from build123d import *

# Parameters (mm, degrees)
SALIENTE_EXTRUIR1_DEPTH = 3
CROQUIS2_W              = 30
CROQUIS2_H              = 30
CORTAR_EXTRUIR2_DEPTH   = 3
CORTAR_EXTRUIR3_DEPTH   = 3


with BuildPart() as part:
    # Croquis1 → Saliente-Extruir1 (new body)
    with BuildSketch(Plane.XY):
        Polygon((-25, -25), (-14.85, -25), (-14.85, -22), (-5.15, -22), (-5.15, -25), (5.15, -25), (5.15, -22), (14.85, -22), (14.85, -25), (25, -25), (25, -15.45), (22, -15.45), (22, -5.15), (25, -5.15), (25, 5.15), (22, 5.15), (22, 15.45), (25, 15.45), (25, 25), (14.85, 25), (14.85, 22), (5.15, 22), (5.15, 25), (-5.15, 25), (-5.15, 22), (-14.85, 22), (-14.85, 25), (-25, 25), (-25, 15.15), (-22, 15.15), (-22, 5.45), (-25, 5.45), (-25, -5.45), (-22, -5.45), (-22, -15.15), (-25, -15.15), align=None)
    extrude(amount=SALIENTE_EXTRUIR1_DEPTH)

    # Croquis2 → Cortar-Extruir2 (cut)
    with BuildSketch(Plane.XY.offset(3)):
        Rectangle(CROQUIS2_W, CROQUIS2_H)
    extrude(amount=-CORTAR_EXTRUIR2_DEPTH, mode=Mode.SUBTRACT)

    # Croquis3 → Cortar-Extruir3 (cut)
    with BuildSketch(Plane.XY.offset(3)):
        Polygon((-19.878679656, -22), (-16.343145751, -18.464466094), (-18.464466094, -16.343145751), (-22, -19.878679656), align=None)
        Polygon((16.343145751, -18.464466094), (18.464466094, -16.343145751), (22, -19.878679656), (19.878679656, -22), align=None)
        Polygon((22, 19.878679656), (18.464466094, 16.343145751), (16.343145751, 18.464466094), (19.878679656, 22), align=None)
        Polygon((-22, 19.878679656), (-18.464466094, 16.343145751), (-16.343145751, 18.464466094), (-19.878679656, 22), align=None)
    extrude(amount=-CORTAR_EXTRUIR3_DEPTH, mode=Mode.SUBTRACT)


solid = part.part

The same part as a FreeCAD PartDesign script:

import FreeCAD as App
import Part
import Sketcher
from FreeCAD import Vector
Q = App.Units.Quantity

doc = App.newDocument("Part")
body = doc.addObject("PartDesign::Body", "Body")

# Sketch on XY plane
sketch1 = body.newObject("Sketcher::SketchObject", "Sketch")
sketch1.AttachmentSupport = (doc.getObject("XY_Plane"), [""])
sketch1.MapMode = "FlatFace"
sketch1.addGeometry(Part.LineSegment(Vector(-25, -25, 0), Vector(-14.8, -25, 0)), False)
sketch1.addGeometry(Part.LineSegment(Vector(-14.8, -25, 0), Vector(-14.8, -22, 0)), False)
sketch1.addGeometry(Part.LineSegment(Vector(-14.8, -22, 0), Vector(-5.2, -22, 0)), False)
sketch1.addGeometry(Part.LineSegment(Vector(-5.2, -22, 0), Vector(-5.2, -25, 0)), False)
sketch1.addGeometry(Part.LineSegment(Vector(-5.2, -25, 0), Vector(5.2, -25, 0)), False)
sketch1.addGeometry(Part.LineSegment(Vector(5.2, -25, 0), Vector(5.2, -22, 0)), False)
sketch1.addGeometry(Part.LineSegment(Vector(5.2, -22, 0), Vector(14.8, -22, 0)), False)
sketch1.addGeometry(Part.LineSegment(Vector(14.8, -22, 0), Vector(14.8, -25, 0)), False)
sketch1.addGeometry(Part.LineSegment(Vector(14.8, -25, 0), Vector(25, -25, 0)), False)
sketch1.addGeometry(Part.LineSegment(Vector(25, -25, 0), Vector(25, -15.4, 0)), False)
sketch1.addGeometry(Part.LineSegment(Vector(25, -15.4, 0), Vector(22, -15.4, 0)), False)
sketch1.addGeometry(Part.LineSegment(Vector(22, -15.4, 0), Vector(22, -5.2, 0)), False)
sketch1.addGeometry(Part.LineSegment(Vector(22, -5.2, 0), Vector(25, -5.2, 0)), False)
sketch1.addGeometry(Part.LineSegment(Vector(25, -5.2, 0), Vector(25, 5.2, 0)), False)
sketch1.addGeometry(Part.LineSegment(Vector(25, 5.2, 0), Vector(22, 5.2, 0)), False)
sketch1.addGeometry(Part.LineSegment(Vector(22, 5.2, 0), Vector(22, 15.4, 0)), False)
sketch1.addGeometry(Part.LineSegment(Vector(22, 15.4, 0), Vector(25, 15.4, 0)), False)
sketch1.addGeometry(Part.LineSegment(Vector(25, 15.4, 0), Vector(25, 25, 0)), False)
sketch1.addGeometry(Part.LineSegment(Vector(25, 25, 0), Vector(14.8, 25, 0)), False)
sketch1.addGeometry(Part.LineSegment(Vector(14.8, 25, 0), Vector(14.8, 22, 0)), False)
sketch1.addGeometry(Part.LineSegment(Vector(14.8, 22, 0), Vector(5.2, 22, 0)), False)
sketch1.addGeometry(Part.LineSegment(Vector(5.2, 22, 0), Vector(5.2, 25, 0)), False)
sketch1.addGeometry(Part.LineSegment(Vector(5.2, 25, 0), Vector(-5.2, 25, 0)), False)
sketch1.addGeometry(Part.LineSegment(Vector(-5.2, 25, 0), Vector(-5.2, 22, 0)), False)
sketch1.addGeometry(Part.LineSegment(Vector(-5.2, 22, 0), Vector(-14.8, 22, 0)), False)
sketch1.addGeometry(Part.LineSegment(Vector(-14.8, 22, 0), Vector(-14.8, 25, 0)), False)
sketch1.addGeometry(Part.LineSegment(Vector(-14.8, 25, 0), Vector(-25, 25, 0)), False)
sketch1.addGeometry(Part.LineSegment(Vector(-25, 25, 0), Vector(-25, 15.2, 0)), False)
sketch1.addGeometry(Part.LineSegment(Vector(-25, 15.2, 0), Vector(-22, 15.2, 0)), False)
sketch1.addGeometry(Part.LineSegment(Vector(-22, 15.2, 0), Vector(-22, 5.5, 0)), False)
sketch1.addGeometry(Part.LineSegment(Vector(-22, 5.5, 0), Vector(-25, 5.5, 0)), False)
sketch1.addGeometry(Part.LineSegment(Vector(-25, 5.5, 0), Vector(-25, -5.5, 0)), False)
sketch1.addGeometry(Part.LineSegment(Vector(-25, -5.5, 0), Vector(-22, -5.5, 0)), False)
sketch1.addGeometry(Part.LineSegment(Vector(-22, -5.5, 0), Vector(-22, -15.2, 0)), False)
sketch1.addGeometry(Part.LineSegment(Vector(-22, -15.2, 0), Vector(-25, -15.2, 0)), False)
sketch1.addGeometry(Part.LineSegment(Vector(-25, -15.2, 0), Vector(-25, -25, 0)), False)
sketch1.addConstraint(Sketcher.Constraint("Coincident", 0, 2, 1, 1))
sketch1.addConstraint(Sketcher.Constraint("Coincident", 1, 2, 2, 1))
sketch1.addConstraint(Sketcher.Constraint("Coincident", 2, 2, 3, 1))
sketch1.addConstraint(Sketcher.Constraint("Coincident", 3, 2, 4, 1))
sketch1.addConstraint(Sketcher.Constraint("Coincident", 4, 2, 5, 1))
sketch1.addConstraint(Sketcher.Constraint("Coincident", 5, 2, 6, 1))
sketch1.addConstraint(Sketcher.Constraint("Coincident", 6, 2, 7, 1))
sketch1.addConstraint(Sketcher.Constraint("Coincident", 7, 2, 8, 1))
sketch1.addConstraint(Sketcher.Constraint("Coincident", 8, 2, 9, 1))
sketch1.addConstraint(Sketcher.Constraint("Coincident", 9, 2, 10, 1))
sketch1.addConstraint(Sketcher.Constraint("Coincident", 10, 2, 11, 1))
sketch1.addConstraint(Sketcher.Constraint("Coincident", 11, 2, 12, 1))
sketch1.addConstraint(Sketcher.Constraint("Coincident", 12, 2, 13, 1))
sketch1.addConstraint(Sketcher.Constraint("Coincident", 13, 2, 14, 1))
sketch1.addConstraint(Sketcher.Constraint("Coincident", 14, 2, 15, 1))
sketch1.addConstraint(Sketcher.Constraint("Coincident", 15, 2, 16, 1))
sketch1.addConstraint(Sketcher.Constraint("Coincident", 16, 2, 17, 1))
sketch1.addConstraint(Sketcher.Constraint("Coincident", 17, 2, 18, 1))
sketch1.addConstraint(Sketcher.Constraint("Coincident", 18, 2, 19, 1))
sketch1.addConstraint(Sketcher.Constraint("Coincident", 19, 2, 20, 1))
sketch1.addConstraint(Sketcher.Constraint("Coincident", 20, 2, 21, 1))
sketch1.addConstraint(Sketcher.Constraint("Coincident", 21, 2, 22, 1))
sketch1.addConstraint(Sketcher.Constraint("Coincident", 22, 2, 23, 1))
sketch1.addConstraint(Sketcher.Constraint("Coincident", 23, 2, 24, 1))
sketch1.addConstraint(Sketcher.Constraint("Coincident", 24, 2, 25, 1))
sketch1.addConstraint(Sketcher.Constraint("Coincident", 25, 2, 26, 1))
sketch1.addConstraint(Sketcher.Constraint("Coincident", 26, 2, 27, 1))
sketch1.addConstraint(Sketcher.Constraint("Coincident", 27, 2, 28, 1))
sketch1.addConstraint(Sketcher.Constraint("Coincident", 28, 2, 29, 1))
sketch1.addConstraint(Sketcher.Constraint("Coincident", 29, 2, 30, 1))
sketch1.addConstraint(Sketcher.Constraint("Coincident", 30, 2, 31, 1))
sketch1.addConstraint(Sketcher.Constraint("Coincident", 31, 2, 32, 1))
sketch1.addConstraint(Sketcher.Constraint("Coincident", 32, 2, 33, 1))
sketch1.addConstraint(Sketcher.Constraint("Coincident", 33, 2, 34, 1))
sketch1.addConstraint(Sketcher.Constraint("Coincident", 34, 2, 35, 1))
sketch1.addConstraint(Sketcher.Constraint("Coincident", 35, 2, 0, 1))
sketch1.addConstraint(Sketcher.Constraint("Horizontal", 0))
sketch1.addConstraint(Sketcher.Constraint("Vertical", 1))
sketch1.addConstraint(Sketcher.Constraint("Horizontal", 2))
sketch1.addConstraint(Sketcher.Constraint("Vertical", 3))
sketch1.addConstraint(Sketcher.Constraint("Horizontal", 4))
sketch1.addConstraint(Sketcher.Constraint("Vertical", 5))
sketch1.addConstraint(Sketcher.Constraint("Horizontal", 6))
sketch1.addConstraint(Sketcher.Constraint("Vertical", 7))
sketch1.addConstraint(Sketcher.Constraint("Horizontal", 8))
sketch1.addConstraint(Sketcher.Constraint("Vertical", 9))
sketch1.addConstraint(Sketcher.Constraint("Horizontal", 10))
sketch1.addConstraint(Sketcher.Constraint("Vertical", 11))
sketch1.addConstraint(Sketcher.Constraint("Horizontal", 12))
sketch1.addConstraint(Sketcher.Constraint("Vertical", 13))
sketch1.addConstraint(Sketcher.Constraint("Horizontal", 14))
sketch1.addConstraint(Sketcher.Constraint("Vertical", 15))
sketch1.addConstraint(Sketcher.Constraint("Horizontal", 16))
sketch1.addConstraint(Sketcher.Constraint("Vertical", 17))
sketch1.addConstraint(Sketcher.Constraint("Horizontal", 18))
sketch1.addConstraint(Sketcher.Constraint("Vertical", 19))
sketch1.addConstraint(Sketcher.Constraint("Horizontal", 20))
sketch1.addConstraint(Sketcher.Constraint("Vertical", 21))
sketch1.addConstraint(Sketcher.Constraint("Horizontal", 22))
sketch1.addConstraint(Sketcher.Constraint("Vertical", 23))
sketch1.addConstraint(Sketcher.Constraint("Horizontal", 24))
sketch1.addConstraint(Sketcher.Constraint("Vertical", 25))
sketch1.addConstraint(Sketcher.Constraint("Horizontal", 26))
sketch1.addConstraint(Sketcher.Constraint("Vertical", 27))
sketch1.addConstraint(Sketcher.Constraint("Horizontal", 28))
sketch1.addConstraint(Sketcher.Constraint("Vertical", 29))
sketch1.addConstraint(Sketcher.Constraint("Horizontal", 30))
sketch1.addConstraint(Sketcher.Constraint("Vertical", 31))
sketch1.addConstraint(Sketcher.Constraint("Horizontal", 32))
sketch1.addConstraint(Sketcher.Constraint("Vertical", 33))
sketch1.addConstraint(Sketcher.Constraint("Horizontal", 34))
sketch1.addConstraint(Sketcher.Constraint("Vertical", 35))
sketch1.addConstraint(Sketcher.Constraint("Symmetric", 0, 2, 18, 2, -1, 1))
sketch1.addConstraint(Sketcher.Constraint("Symmetric", 2, 2, 20, 2, -1, 1))
sketch1.addConstraint(Sketcher.Constraint("Symmetric", 4, 2, 22, 2, -1, 1))
sketch1.addConstraint(Sketcher.Constraint("Symmetric", 6, 2, 24, 2, -1, 1))
sketch1.addConstraint(Sketcher.Constraint("Symmetric", 8, 2, 26, 2, -1, 1))
sketch1.addConstraint(Sketcher.Constraint("Symmetric", 2, 2, 5, 2, -2))
sketch1.addConstraint(Sketcher.Constraint("Symmetric", 0, 2, 7, 2, -2))
sketch1.addConstraint(Sketcher.Constraint("Symmetric", 11, 2, 14, 2, -1))
sketch1.addConstraint(Sketcher.Constraint("Symmetric", 9, 2, 16, 2, -1))
sketch1.addConstraint(Sketcher.Constraint("Symmetric", 29, 2, 32, 2, -1))
sketch1.addConstraint(Sketcher.Constraint("Symmetric", 27, 2, 34, 2, -1))
sketch1.addConstraint(Sketcher.Constraint("Horizontal", 0, 2, 3, 2))
sketch1.addConstraint(Sketcher.Constraint("Vertical", 9, 2, 12, 2))
sketch1.addConstraint(Sketcher.Constraint("Vertical", 27, 2, 30, 2))
sketch1.addConstraint(Sketcher.Constraint("Equal", 16, 28))
sketch1.addConstraint(Sketcher.Constraint("Equal", 34, 1))
sketch1.addConstraint(Sketcher.Constraint("Equal", 22, 11))
sketch1.addConstraint(Sketcher.Constraint("Equal", 11, 13))
sketch1.addConstraint(Sketcher.Constraint("Equal", 24, 29))
sketch1.addConstraint(Sketcher.Constraint("DistanceX", 10, 2, 10, 1, Q("3 mm")))
sketch1.addConstraint(Sketcher.Constraint("DistanceX", 2, 1, 2, 2, Q("9.7 mm")))
sketch1.addConstraint(Sketcher.Constraint("DistanceX", 4, 1, 4, 2, Q("10.3 mm")))
sketch1.addConstraint(Sketcher.Constraint("DistanceY", 31, 2, 31, 1, Q("10.9 mm")))
sketch1.addConstraint(Sketcher.Constraint("DistanceY", 0, 2, -1, 1, Q("25 mm")))
sketch1.addConstraint(Sketcher.Constraint("DistanceX", -1, 1, 8, 2, Q("25 mm")))
pad1 = body.newObject("PartDesign::Pad", "Pad")
pad1.Profile = sketch1
pad1.Length = 3

# Sketch on XY plane
sketch2 = body.newObject("Sketcher::SketchObject", "Sketch001")
sketch2.AttachmentSupport = (doc.getObject("XY_Plane"), [""])
sketch2.MapMode = "FlatFace"
sketch2.AttachmentOffset = App.Placement(Vector(0, 0, 3), App.Rotation())
sketch2.addGeometry(Part.LineSegment(Vector(-15, 15, 0), Vector(-15, -15, 0)), False)
sketch2.addGeometry(Part.LineSegment(Vector(-15, -15, 0), Vector(15, -15, 0)), False)
sketch2.addGeometry(Part.LineSegment(Vector(15, -15, 0), Vector(15, 15, 0)), False)
sketch2.addGeometry(Part.LineSegment(Vector(15, 15, 0), Vector(-15, 15, 0)), False)
sketch2.addConstraint(Sketcher.Constraint("Coincident", 0, 2, 1, 1))
sketch2.addConstraint(Sketcher.Constraint("Coincident", 1, 2, 2, 1))
sketch2.addConstraint(Sketcher.Constraint("Coincident", 2, 2, 3, 1))
sketch2.addConstraint(Sketcher.Constraint("Coincident", 3, 2, 0, 1))
sketch2.addConstraint(Sketcher.Constraint("Vertical", 0))
sketch2.addConstraint(Sketcher.Constraint("Horizontal", 1))
sketch2.addConstraint(Sketcher.Constraint("Vertical", 2))
sketch2.addConstraint(Sketcher.Constraint("Horizontal", 3))
sketch2.addConstraint(Sketcher.Constraint("Symmetric", 0, 2, 2, 2, -1, 1))
sketch2.addConstraint(Sketcher.Constraint("Equal", 3, 0))
sketch2.addConstraint(Sketcher.Constraint("DistanceX", 1, 1, 1, 2, Q("30 mm")))
pocket1 = body.newObject("PartDesign::Pocket", "Pocket")
pocket1.Profile = sketch2
pocket1.Length = 3

# Sketch on XY plane
sketch3 = body.newObject("Sketcher::SketchObject", "Sketch002")
sketch3.AttachmentSupport = (doc.getObject("XY_Plane"), [""])
sketch3.MapMode = "FlatFace"
sketch3.AttachmentOffset = App.Placement(Vector(0, 0, 3), App.Rotation())
sketch3.addGeometry(Part.LineSegment(Vector(-19.9, -22, 0), Vector(-16.3, -18.5, 0)), False)
sketch3.addGeometry(Part.LineSegment(Vector(-16.3, -18.5, 0), Vector(-18.5, -16.3, 0)), False)
sketch3.addGeometry(Part.LineSegment(Vector(-18.5, -16.3, 0), Vector(-22, -19.9, 0)), False)
sketch3.addGeometry(Part.LineSegment(Vector(-22, -19.9, 0), Vector(-19.9, -22, 0)), False)
sketch3.addGeometry(Part.LineSegment(Vector(18.5, -16.3, 0), Vector(16.3, -18.5, 0)), False)
sketch3.addGeometry(Part.LineSegment(Vector(16.3, -18.5, 0), Vector(19.9, -22, 0)), False)
sketch3.addGeometry(Part.LineSegment(Vector(19.9, -22, 0), Vector(22, -19.9, 0)), False)
sketch3.addGeometry(Part.LineSegment(Vector(22, -19.9, 0), Vector(18.5, -16.3, 0)), False)
sketch3.addGeometry(Part.LineSegment(Vector(18.5, 16.3, 0), Vector(22, 19.9, 0)), False)
sketch3.addGeometry(Part.LineSegment(Vector(22, 19.9, 0), Vector(19.9, 22, 0)), False)
sketch3.addGeometry(Part.LineSegment(Vector(19.9, 22, 0), Vector(16.3, 18.5, 0)), False)
sketch3.addGeometry(Part.LineSegment(Vector(16.3, 18.5, 0), Vector(18.5, 16.3, 0)), False)
sketch3.addGeometry(Part.LineSegment(Vector(-22, 19.9, 0), Vector(-18.5, 16.3, 0)), False)
sketch3.addGeometry(Part.LineSegment(Vector(-18.5, 16.3, 0), Vector(-16.3, 18.5, 0)), False)
sketch3.addGeometry(Part.LineSegment(Vector(-16.3, 18.5, 0), Vector(-19.9, 22, 0)), False)
sketch3.addGeometry(Part.LineSegment(Vector(-19.9, 22, 0), Vector(-22, 19.9, 0)), False)
sketch3.addConstraint(Sketcher.Constraint("Coincident", 0, 2, 1, 1))
sketch3.addConstraint(Sketcher.Constraint("Coincident", 1, 2, 2, 1))
sketch3.addConstraint(Sketcher.Constraint("Coincident", 2, 2, 3, 1))
sketch3.addConstraint(Sketcher.Constraint("Coincident", 3, 2, 0, 1))
sketch3.addConstraint(Sketcher.Constraint("Coincident", 4, 2, 5, 1))
sketch3.addConstraint(Sketcher.Constraint("Coincident", 5, 2, 6, 1))
sketch3.addConstraint(Sketcher.Constraint("Coincident", 6, 2, 7, 1))
sketch3.addConstraint(Sketcher.Constraint("Coincident", 7, 2, 4, 1))
sketch3.addConstraint(Sketcher.Constraint("Coincident", 8, 2, 9, 1))
sketch3.addConstraint(Sketcher.Constraint("Coincident", 9, 2, 10, 1))
sketch3.addConstraint(Sketcher.Constraint("Coincident", 10, 2, 11, 1))
sketch3.addConstraint(Sketcher.Constraint("Coincident", 11, 2, 8, 1))
sketch3.addConstraint(Sketcher.Constraint("Coincident", 12, 2, 13, 1))
sketch3.addConstraint(Sketcher.Constraint("Coincident", 13, 2, 14, 1))
sketch3.addConstraint(Sketcher.Constraint("Coincident", 14, 2, 15, 1))
sketch3.addConstraint(Sketcher.Constraint("Coincident", 15, 2, 12, 1))
sketch3.addConstraint(Sketcher.Constraint("Symmetric", 2, 2, 8, 2, -1, 1))
sketch3.addConstraint(Sketcher.Constraint("Symmetric", 3, 2, 9, 2, -1, 1))
sketch3.addConstraint(Sketcher.Constraint("Symmetric", 0, 2, 10, 2, -1, 1))
sketch3.addConstraint(Sketcher.Constraint("Symmetric", 1, 2, 11, 2, -1, 1))
sketch3.addConstraint(Sketcher.Constraint("Symmetric", 7, 2, 12, 2, -1, 1))
sketch3.addConstraint(Sketcher.Constraint("Symmetric", 4, 2, 13, 2, -1, 1))
sketch3.addConstraint(Sketcher.Constraint("Symmetric", 5, 2, 14, 2, -1, 1))
sketch3.addConstraint(Sketcher.Constraint("Symmetric", 6, 2, 15, 2, -1, 1))
sketch3.addConstraint(Sketcher.Constraint("Symmetric", 0, 2, 4, 2, -2))
sketch3.addConstraint(Sketcher.Constraint("Symmetric", 3, 2, 5, 2, -2))
sketch3.addConstraint(Sketcher.Constraint("Symmetric", 2, 2, 6, 2, -2))
sketch3.addConstraint(Sketcher.Constraint("Symmetric", 1, 2, 7, 2, -2))
sketch3.addConstraint(Sketcher.Constraint("Perpendicular", 0, 1))
sketch3.addConstraint(Sketcher.Constraint("Perpendicular", 1, 2))
sketch3.addConstraint(Sketcher.Constraint("Perpendicular", 2, 3))
sketch3.addConstraint(Sketcher.Constraint("Perpendicular", 3, 4))
sketch3.addConstraint(Sketcher.Constraint("Distance", 0, Q("5 mm")))
sketch3.addConstraint(Sketcher.Constraint("Distance", 1, Q("3 mm")))
sketch3.addConstraint(Sketcher.Constraint("DistanceX", 2, 2, -1, 1, Q("22 mm")))
sketch3.addConstraint(Sketcher.Constraint("DistanceY", 3, 2, -1, 1, Q("22 mm")))
pocket2 = body.newObject("PartDesign::Pocket", "Pocket001")
pocket2.Profile = sketch3
pocket2.Length = 3

doc.recompute()
